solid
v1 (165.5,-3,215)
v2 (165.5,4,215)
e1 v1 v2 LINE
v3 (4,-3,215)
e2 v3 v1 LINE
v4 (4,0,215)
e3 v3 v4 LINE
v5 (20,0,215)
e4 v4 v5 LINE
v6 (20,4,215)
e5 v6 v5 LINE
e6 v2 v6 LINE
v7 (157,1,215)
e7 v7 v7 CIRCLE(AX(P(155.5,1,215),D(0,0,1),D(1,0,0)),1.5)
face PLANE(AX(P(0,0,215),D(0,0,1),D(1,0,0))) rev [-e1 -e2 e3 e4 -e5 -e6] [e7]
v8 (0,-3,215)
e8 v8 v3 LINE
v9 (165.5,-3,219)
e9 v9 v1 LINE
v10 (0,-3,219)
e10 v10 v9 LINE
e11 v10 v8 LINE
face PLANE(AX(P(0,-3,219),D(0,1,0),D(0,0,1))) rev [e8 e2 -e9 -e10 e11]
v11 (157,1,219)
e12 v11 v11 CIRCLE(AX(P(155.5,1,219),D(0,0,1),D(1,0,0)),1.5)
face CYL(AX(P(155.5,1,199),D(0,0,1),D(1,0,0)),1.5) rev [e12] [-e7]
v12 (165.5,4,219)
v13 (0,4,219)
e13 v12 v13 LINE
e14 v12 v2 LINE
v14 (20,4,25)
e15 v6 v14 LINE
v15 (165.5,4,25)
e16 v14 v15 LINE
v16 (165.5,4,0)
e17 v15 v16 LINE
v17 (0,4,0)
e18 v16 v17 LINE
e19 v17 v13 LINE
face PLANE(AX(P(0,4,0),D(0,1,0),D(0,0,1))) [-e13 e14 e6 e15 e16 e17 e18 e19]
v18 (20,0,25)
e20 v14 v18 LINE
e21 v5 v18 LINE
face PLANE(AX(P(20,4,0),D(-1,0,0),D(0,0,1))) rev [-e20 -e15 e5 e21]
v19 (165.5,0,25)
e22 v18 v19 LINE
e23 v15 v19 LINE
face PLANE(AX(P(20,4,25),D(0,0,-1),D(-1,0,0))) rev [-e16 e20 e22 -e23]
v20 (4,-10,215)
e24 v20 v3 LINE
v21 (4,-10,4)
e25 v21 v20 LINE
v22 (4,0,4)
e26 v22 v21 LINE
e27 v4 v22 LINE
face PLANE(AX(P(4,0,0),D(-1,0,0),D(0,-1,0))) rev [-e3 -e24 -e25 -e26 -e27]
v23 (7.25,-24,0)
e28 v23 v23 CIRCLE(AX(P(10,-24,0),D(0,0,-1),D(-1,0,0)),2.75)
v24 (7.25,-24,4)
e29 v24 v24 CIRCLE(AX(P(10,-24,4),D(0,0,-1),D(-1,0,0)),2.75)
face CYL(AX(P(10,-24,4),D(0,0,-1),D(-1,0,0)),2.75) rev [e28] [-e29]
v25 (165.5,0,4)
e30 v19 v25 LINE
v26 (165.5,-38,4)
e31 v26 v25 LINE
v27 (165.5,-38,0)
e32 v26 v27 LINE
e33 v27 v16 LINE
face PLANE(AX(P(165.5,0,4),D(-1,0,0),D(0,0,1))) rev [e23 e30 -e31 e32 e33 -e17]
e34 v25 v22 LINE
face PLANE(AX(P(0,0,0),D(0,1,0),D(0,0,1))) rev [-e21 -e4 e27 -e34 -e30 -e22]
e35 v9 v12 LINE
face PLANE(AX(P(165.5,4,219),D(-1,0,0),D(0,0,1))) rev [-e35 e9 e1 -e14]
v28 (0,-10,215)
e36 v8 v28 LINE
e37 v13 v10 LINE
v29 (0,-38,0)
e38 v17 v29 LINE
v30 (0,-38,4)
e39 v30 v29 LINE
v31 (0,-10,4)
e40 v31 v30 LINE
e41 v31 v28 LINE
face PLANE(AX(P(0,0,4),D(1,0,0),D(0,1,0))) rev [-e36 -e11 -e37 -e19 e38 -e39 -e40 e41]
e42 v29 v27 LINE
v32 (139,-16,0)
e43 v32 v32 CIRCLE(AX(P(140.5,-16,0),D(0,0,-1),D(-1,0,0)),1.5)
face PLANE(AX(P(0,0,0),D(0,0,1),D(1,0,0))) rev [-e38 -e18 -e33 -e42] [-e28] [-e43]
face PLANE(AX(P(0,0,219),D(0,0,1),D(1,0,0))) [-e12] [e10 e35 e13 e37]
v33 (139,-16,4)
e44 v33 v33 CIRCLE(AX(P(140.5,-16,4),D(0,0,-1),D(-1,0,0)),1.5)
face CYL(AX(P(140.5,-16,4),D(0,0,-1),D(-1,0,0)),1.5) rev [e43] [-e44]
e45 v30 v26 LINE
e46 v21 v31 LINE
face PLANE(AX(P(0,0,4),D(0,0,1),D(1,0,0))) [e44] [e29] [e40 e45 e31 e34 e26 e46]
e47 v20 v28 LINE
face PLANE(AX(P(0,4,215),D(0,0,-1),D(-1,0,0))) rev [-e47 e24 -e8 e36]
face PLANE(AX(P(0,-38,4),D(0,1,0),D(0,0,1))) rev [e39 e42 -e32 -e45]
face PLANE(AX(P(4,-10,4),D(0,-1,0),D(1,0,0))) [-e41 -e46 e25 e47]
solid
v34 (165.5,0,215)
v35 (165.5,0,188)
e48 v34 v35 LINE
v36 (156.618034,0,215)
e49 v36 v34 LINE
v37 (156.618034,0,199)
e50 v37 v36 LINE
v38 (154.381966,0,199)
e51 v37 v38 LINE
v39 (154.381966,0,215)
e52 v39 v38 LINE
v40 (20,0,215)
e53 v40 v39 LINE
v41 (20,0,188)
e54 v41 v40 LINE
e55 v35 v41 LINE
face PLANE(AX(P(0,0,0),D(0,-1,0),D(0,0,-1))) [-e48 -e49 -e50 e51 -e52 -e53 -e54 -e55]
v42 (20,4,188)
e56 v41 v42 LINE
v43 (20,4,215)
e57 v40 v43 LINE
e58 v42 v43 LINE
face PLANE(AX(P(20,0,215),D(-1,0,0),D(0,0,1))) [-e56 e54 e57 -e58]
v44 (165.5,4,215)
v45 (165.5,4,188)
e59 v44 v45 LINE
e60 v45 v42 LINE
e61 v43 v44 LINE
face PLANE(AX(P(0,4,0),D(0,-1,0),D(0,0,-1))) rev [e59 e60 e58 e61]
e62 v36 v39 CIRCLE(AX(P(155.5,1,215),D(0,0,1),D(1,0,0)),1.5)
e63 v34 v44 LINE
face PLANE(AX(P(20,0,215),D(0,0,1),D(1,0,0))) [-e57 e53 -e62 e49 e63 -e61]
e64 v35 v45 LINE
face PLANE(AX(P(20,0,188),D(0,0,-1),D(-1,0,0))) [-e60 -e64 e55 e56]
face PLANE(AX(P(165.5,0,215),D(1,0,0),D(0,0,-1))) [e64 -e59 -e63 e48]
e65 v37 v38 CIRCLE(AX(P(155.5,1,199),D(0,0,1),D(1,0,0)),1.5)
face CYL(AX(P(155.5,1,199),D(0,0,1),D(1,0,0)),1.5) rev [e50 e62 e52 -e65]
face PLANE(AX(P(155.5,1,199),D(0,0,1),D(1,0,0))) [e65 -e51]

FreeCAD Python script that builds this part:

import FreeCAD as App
import Part
import Sketcher
Q = App.Units.Quantity

doc = App.newDocument("Part")
body = doc.addObject("PartDesign::Body", "Body")

# Sketch on XY plane
sketch1 = doc.addObject("Sketcher::SketchObject", "Sketch")
body.addObject(sketch1)
sketch1.AttachmentSupport = (doc.XY_Plane, [""])
sketch1.MapMode = "FlatFace"
sketch1.addGeometry([
    Part.LineSegment(App.Vector(0, 0, 0), App.Vector(0, -38, 0)),
    Part.LineSegment(App.Vector(0, -38, 0), App.Vector(165.5, -38, 0)),
    Part.LineSegment(App.Vector(165.5, -38, 0), App.Vector(165.5, 0, 0)),
    Part.LineSegment(App.Vector(165.5, 0, 0), App.Vector(0, 0, 0)),
], False)
sketch1.addConstraint([
    Sketcher.Constraint("Coincident", 0, 2, 1, 1),
    Sketcher.Constraint("Coincident", 1, 2, 2, 1),
    Sketcher.Constraint("Coincident", 2, 2, 3, 1),
    Sketcher.Constraint("Coincident", 3, 2, 0, 1),
    Sketcher.Constraint("Vertical", 0),
    Sketcher.Constraint("Horizontal", 1),
    Sketcher.Constraint("Vertical", 2),
    Sketcher.Constraint("Horizontal", 3),
    Sketcher.Constraint("Coincident", 3, 2, -1, 1),
    Sketcher.Constraint("DistanceY", 0, 2, 0, 1, Q("38 mm")),
    Sketcher.Constraint("DistanceX", 1, 1, 1, 2, Q("165.5 mm")),
])
pad1 = doc.addObject("PartDesign::Pad", "Pad")
body.addObject(pad1)
pad1.Profile = sketch1
pad1.Length = 4

# Sketch on XZ plane
sketch2 = doc.addObject("Sketcher::SketchObject", "Sketch001")
body.addObject(sketch2)
sketch2.AttachmentSupport = (doc.XZ_Plane, [""])
sketch2.MapMode = "FlatFace"
sketch2.addGeometry([
    Part.LineSegment(App.Vector(0, 0, 0), App.Vector(0, 215, 0)),
    Part.LineSegment(App.Vector(0, 215, 0), App.Vector(20, 215, 0)),
    Part.LineSegment(App.Vector(20, 215, 0), App.Vector(20, 0, 0)),
    Part.LineSegment(App.Vector(20, 0, 0), App.Vector(0, 0, 0)),
], False)
sketch2.addConstraint([
    Sketcher.Constraint("Coincident", 0, 2, 1, 1),
    Sketcher.Constraint("Coincident", 1, 2, 2, 1),
    Sketcher.Constraint("Coincident", 2, 2, 3, 1),
    Sketcher.Constraint("Coincident", 3, 2, 0, 1),
    Sketcher.Constraint("Vertical", 0),
    Sketcher.Constraint("Horizontal", 1),
    Sketcher.Constraint("Vertical", 2),
    Sketcher.Constraint("Horizontal", 3),
    Sketcher.Constraint("Coincident", 3, 2, -1, 1),
    Sketcher.Constraint("DistanceX", 1, 1, 1, 2, Q("20 mm")),
    Sketcher.Constraint("DistanceY", 0, 1, 0, 2, Q("215 mm")),
])
pad2 = doc.addObject("PartDesign::Pad", "Pad001")
body.addObject(pad2)
pad2.Profile = sketch2
pad2.Length = 4
pad2.Reversed = True

# Sketch on YZ plane
sketch3 = doc.addObject("Sketcher::SketchObject", "Sketch002")
body.addObject(sketch3)
sketch3.AttachmentSupport = (doc.YZ_Plane, [""])
sketch3.MapMode = "FlatFace"
sketch3.addGeometry([
    Part.LineSegment(App.Vector(0, 4, 0), App.Vector(-10, 4, 0)),
    Part.LineSegment(App.Vector(-10, 4, 0), App.Vector(-10, 215, 0)),
    Part.LineSegment(App.Vector(-10, 215, 0), App.Vector(0, 215, 0)),
    Part.LineSegment(App.Vector(0, 215, 0), App.Vector(0, 4, 0)),
], False)
sketch3.addConstraint([
    Sketcher.Constraint("Coincident", 0, 2, 1, 1),
    Sketcher.Constraint("Coincident", 1, 2, 2, 1),
    Sketcher.Constraint("Coincident", 2, 2, 3, 1),
    Sketcher.Constraint("Coincident", 3, 2, 0, 1),
    Sketcher.Constraint("Horizontal", 0),
    Sketcher.Constraint("Vertical", 1),
    Sketcher.Constraint("Horizontal", 2),
    Sketcher.Constraint("Vertical", 3),
    Sketcher.Constraint("PointOnObject", 2, 2, -2),
    Sketcher.Constraint("DistanceX", 0, 2, 0, 1, Q("10 mm")),
    Sketcher.Constraint("DistanceY", 1, 1, 1, 2, Q("211 mm")),
    Sketcher.Constraint("DistanceY", -1, 1, 0, 2, Q("4 mm")),
])
pad3 = doc.addObject("PartDesign::Pad", "Pad002")
body.addObject(pad3)
pad3.Profile = sketch3
pad3.Length = 4

# Sketch on XZ plane
sketch4 = doc.addObject("Sketcher::SketchObject", "Sketch003")
body.addObject(sketch4)
sketch4.AttachmentSupport = (doc.XZ_Plane, [""])
sketch4.MapMode = "FlatFace"
sketch4.addGeometry([
    Part.LineSegment(App.Vector(20, 0, 0), App.Vector(20, 25, 0)),
    Part.LineSegment(App.Vector(20, 25, 0), App.Vector(165.5, 25, 0)),
    Part.LineSegment(App.Vector(165.5, 25, 0), App.Vector(165.5, 0, 0)),
    Part.LineSegment(App.Vector(165.5, 0, 0), App.Vector(20, 0, 0)),
], False)
sketch4.addConstraint([
    Sketcher.Constraint("Coincident", 0, 2, 1, 1),
    Sketcher.Constraint("Coincident", 1, 2, 2, 1),
    Sketcher.Constraint("Coincident", 2, 2, 3, 1),
    Sketcher.Constraint("Coincident", 3, 2, 0, 1),
    Sketcher.Constraint("Vertical", 0),
    Sketcher.Constraint("Horizontal", 1),
    Sketcher.Constraint("Vertical", 2),
    Sketcher.Constraint("Horizontal", 3),
    Sketcher.Constraint("PointOnObject", 2, 2, -1),
    Sketcher.Constraint("DistanceY", 0, 1, 0, 2, Q("25 mm")),
    Sketcher.Constraint("DistanceX", 1, 1, 1, 2, Q("145.5 mm")),
    Sketcher.Constraint("DistanceX", -1, 1, 0, 2, Q("20 mm")),
])
pad4 = doc.addObject("PartDesign::Pad", "Pad003")
body.addObject(pad4)
pad4.Profile = sketch4
pad4.Length = 4
pad4.Reversed = True

# Sketch on XY plane
sketch5 = doc.addObject("Sketcher::SketchObject", "Sketch004")
body.addObject(sketch5)
sketch5.AttachmentSupport = (doc.XY_Plane, [""])
sketch5.MapMode = "FlatFace"
sketch5.addGeometry(Part.Circle(App.Vector(140.5, -16, 0), App.Vector(0, 0, 1), 1.5), False)
sketch5.addConstraint([
    Sketcher.Constraint("Diameter", 0, Q("3 mm")),
    Sketcher.Constraint("DistanceY", 0, 3, -1, 1, Q("16 mm")),
    Sketcher.Constraint("DistanceX", -1, 1, 0, 3, Q("140.5 mm")),
])
pocket1 = doc.addObject("PartDesign::Pocket", "Pocket")
body.addObject(pocket1)
pocket1.Profile = sketch5
pocket1.Length = 4
pocket1.Reversed = True

# Sketch on XY plane
sketch6 = doc.addObject("Sketcher::SketchObject", "Sketch005")
body.addObject(sketch6)
sketch6.AttachmentSupport = (doc.XY_Plane, [""])
sketch6.MapMode = "FlatFace"
sketch6.AttachmentOffset = App.Placement(App.Vector(0, 0, 215), App.Rotation())
sketch6.addGeometry([
    Part.LineSegment(App.Vector(0, 4, 0), App.Vector(0, -3, 0)),
    Part.LineSegment(App.Vector(0, -3, 0), App.Vector(165.5, -3, 0)),
    Part.LineSegment(App.Vector(165.5, -3, 0), App.Vector(165.5, 4, 0)),
    Part.LineSegment(App.Vector(165.5, 4, 0), App.Vector(0, 4, 0)),
], False)
sketch6.addConstraint([
    Sketcher.Constraint("Coincident", 0, 2, 1, 1),
    Sketcher.Constraint("Coincident", 1, 2, 2, 1),
    Sketcher.Constraint("Coincident", 2, 2, 3, 1),
    Sketcher.Constraint("Coincident", 3, 2, 0, 1),
    Sketcher.Constraint("Vertical", 0),
    Sketcher.Constraint("Horizontal", 1),
    Sketcher.Constraint("Vertical", 2),
    Sketcher.Constraint("Horizontal", 3),
    Sketcher.Constraint("PointOnObject", 0, 2, -2),
    Sketcher.Constraint("DistanceY", 0, 2, 0, 1, Q("7 mm")),
    Sketcher.Constraint("DistanceX", 1, 1, 1, 2, Q("165.5 mm")),
    Sketcher.Constraint("DistanceY", 0, 2, -1, 1, Q("3 mm")),
])
pad5 = doc.addObject("PartDesign::Pad", "Pad004")
body.addObject(pad5)
pad5.Profile = sketch6
pad5.Length = 4

# Sketch on XY plane
sketch7 = doc.addObject("Sketcher::SketchObject", "Sketch006")
body.addObject(sketch7)
sketch7.AttachmentSupport = (doc.XY_Plane, [""])
sketch7.MapMode = "FlatFace"
sketch7.addGeometry(Part.Circle(App.Vector(10, -24, 0), App.Vector(0, 0, 1), 2.75), False)
sketch7.addConstraint([
    Sketcher.Constraint("Diameter", 0, Q("5.5 mm")),
    Sketcher.Constraint("DistanceX", -1, 1, 0, 3, Q("10 mm")),
    Sketcher.Constraint("DistanceY", 0, 3, -1, 1, Q("24 mm")),
])
pocket2 = doc.addObject("PartDesign::Pocket", "Pocket001")
body.addObject(pocket2)
pocket2.Profile = sketch7
pocket2.Length = 4
pocket2.Reversed = True
body2 = doc.addObject("PartDesign::Body", "Body001")

# Sketch on XZ plane
sketch8 = doc.addObject("Sketcher::SketchObject", "Sketch007")
body2.addObject(sketch8)
sketch8.AttachmentSupport = (doc.getObject("XZ_Plane001"), [""])
sketch8.MapMode = "FlatFace"
sketch8.AttachmentOffset = App.Placement(App.Vector(0, 0, -4), App.Rotation())
sketch8.addGeometry([
    Part.LineSegment(App.Vector(20, 188, 0), App.Vector(20, 215, 0)),
    Part.LineSegment(App.Vector(20, 215, 0), App.Vector(165.5, 215, 0)),
    Part.LineSegment(App.Vector(165.5, 215, 0), App.Vector(165.5, 188, 0)),
    Part.LineSegment(App.Vector(165.5, 188, 0), App.Vector(20, 188, 0)),
], False)
sketch8.addConstraint([
    Sketcher.Constraint("Coincident", 0, 2, 1, 1),
    Sketcher.Constraint("Coincident", 1, 2, 2, 1),
    Sketcher.Constraint("Coincident", 2, 2, 3, 1),
    Sketcher.Constraint("Coincident", 3, 2, 0, 1),
    Sketcher.Constraint("Vertical", 0),
    Sketcher.Constraint("Horizontal", 1),
    Sketcher.Constraint("Vertical", 2),
    Sketcher.Constraint("Horizontal", 3),
    Sketcher.Constraint("DistanceY", 0, 1, 0, 2, Q("27 mm")),
    Sketcher.Constraint("DistanceX", 1, 1, 1, 2, Q("145.5 mm")),
    Sketcher.Constraint("DistanceX", -1, 1, 0, 2, Q("20 mm")),
    Sketcher.Constraint("DistanceY", -1, 1, 0, 2, Q("215 mm")),
])
pad6 = doc.addObject("PartDesign::Pad", "Pad005")
body2.addObject(pad6)
pad6.Profile = sketch8
pad6.Length = 4
body3 = doc.addObject("PartDesign::Body", "Body002")

# Sketch on XY plane
sketch9 = doc.addObject("Sketcher::SketchObject", "Sketch008")
body3.addObject(sketch9)
sketch9.AttachmentSupport = (doc.getObject("XY_Plane002"), [""])
sketch9.MapMode = "FlatFace"
sketch9.AttachmentOffset = App.Placement(App.Vector(0, 0, 219), App.Rotation())
sketch9.addGeometry(Part.Circle(App.Vector(155.5, 1, 0), App.Vector(0, 0, 1), 1.5), False)
sketch9.addConstraint([
    Sketcher.Constraint("Diameter", 0, Q("3 mm")),
    Sketcher.Constraint("DistanceY", -1, 1, 0, 3, Q("1 mm")),
    Sketcher.Constraint("DistanceX", -1, 1, 0, 3, Q("155.5 mm")),
])
pad7 = doc.addObject("PartDesign::Pad", "Pad006")
body3.addObject(pad7)
pad7.Profile = sketch9
pad7.Length = 20
pad7.Reversed = True
doc.recompute()

body4 = doc.addObject("PartDesign::Body", "Body003")
body4.BaseFeature = body3
boolean = doc.addObject("PartDesign::Boolean", "Boolean")
body.addObject(boolean)
boolean.Type = "Cut"
boolean.addObjects([body4])
doc.recompute()

boolean2 = doc.addObject("PartDesign::Boolean", "Boolean001")
body2.addObject(boolean2)
boolean2.Type = "Cut"
boolean2.addObjects([body3])

doc.recompute()
